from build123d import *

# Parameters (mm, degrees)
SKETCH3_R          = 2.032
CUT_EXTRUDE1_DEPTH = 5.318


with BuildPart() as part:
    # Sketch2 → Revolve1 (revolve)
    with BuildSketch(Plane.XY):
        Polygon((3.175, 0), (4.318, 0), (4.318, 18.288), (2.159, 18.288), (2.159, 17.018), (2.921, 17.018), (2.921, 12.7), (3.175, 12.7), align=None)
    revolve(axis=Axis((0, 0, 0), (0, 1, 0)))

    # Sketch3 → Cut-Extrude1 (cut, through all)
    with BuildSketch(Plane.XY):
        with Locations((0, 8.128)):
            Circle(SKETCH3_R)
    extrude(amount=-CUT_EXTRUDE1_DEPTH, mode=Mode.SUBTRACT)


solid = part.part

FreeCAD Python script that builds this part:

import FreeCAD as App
import Part
import Sketcher
Q = App.Units.Quantity

doc = App.newDocument("Part")
body = doc.addObject("PartDesign::Body", "Body")

sketch1 = body.newObject("Sketcher::SketchObject", "Sketch")
sketch1.AttachmentSupport = (doc.getObject("XY_Plane"), [""])
sketch1.MapMode = "FlatFace"
sketch1.addGeometry(Part.LineSegment(App.Vector(3.17, 0, 0), App.Vector(4.32, 0, 0)), False)
sketch1.addGeometry(Part.LineSegment(App.Vector(4.32, 0, 0), App.Vector(4.32, 18.29, 0)), False)
sketch1.addGeometry(Part.LineSegment(App.Vector(4.32, 18.29, 0), App.Vector(2.16, 18.29, 0)), False)
sketch1.addGeometry(Part.LineSegment(App.Vector(2.16, 18.29, 0), App.Vector(2.16, 17.02, 0)), False)
sketch1.addGeometry(Part.LineSegment(App.Vector(2.16, 17.02, 0), App.Vector(2.92, 17.02, 0)), False)
sketch1.addGeometry(Part.LineSegment(App.Vector(2.92, 17.02, 0), App.Vector(2.92, 12.7, 0)), False)
sketch1.addGeometry(Part.LineSegment(App.Vector(2.92, 12.7, 0), App.Vector(3.17, 12.7, 0)), False)
sketch1.addGeometry(Part.LineSegment(App.Vector(3.17, 12.7, 0), App.Vector(3.17, 0, 0)), False)
sketch1.addConstraint(Sketcher.Constraint("Coincident", 0, 2, 1, 1))
sketch1.addConstraint(Sketcher.Constraint("Coincident", 1, 2, 2, 1))
sketch1.addConstraint(Sketcher.Constraint("Coincident", 2, 2, 3, 1))
sketch1.addConstraint(Sketcher.Constraint("Coincident", 3, 2, 4, 1))
sketch1.addConstraint(Sketcher.Constraint("Coincident", 4, 2, 5, 1))
sketch1.addConstraint(Sketcher.Constraint("Coincident", 5, 2, 6, 1))
sketch1.addConstraint(Sketcher.Constraint("Coincident", 6, 2, 7, 1))
sketch1.addConstraint(Sketcher.Constraint("Coincident", 7, 2, 0, 1))
sketch1.addConstraint(Sketcher.Constraint("Horizontal", 0))
sketch1.addConstraint(Sketcher.Constraint("Vertical", 1))
sketch1.addConstraint(Sketcher.Constraint("Horizontal", 2))
sketch1.addConstraint(Sketcher.Constraint("Vertical", 3))
sketch1.addConstraint(Sketcher.Constraint("Horizontal", 4))
sketch1.addConstraint(Sketcher.Constraint("Vertical", 5))
sketch1.addConstraint(Sketcher.Constraint("Horizontal", 6))
sketch1.addConstraint(Sketcher.Constraint("Vertical", 7))
sketch1.addConstraint(Sketcher.Constraint("PointOnObject", 0, 2, -1))
sketch1.addConstraint(Sketcher.Constraint("DistanceY", 7, 2, 7, 1, Q("0.5 in")))
sketch1.addConstraint(Sketcher.Constraint("DistanceX", 4, 1, 4, 2, Q("0.03 in")))
sketch1.addConstraint(Sketcher.Constraint("DistanceX", 6, 1, 6, 2, Q("0.01 in")))
sketch1.addConstraint(Sketcher.Constraint("DistanceY", 1, 1, 1, 2, Q("0.72 in")))
sketch1.addConstraint(Sketcher.Constraint("DistanceY", 3, 2, 3, 1, Q("0.05 in")))
sketch1.addConstraint(Sketcher.Constraint("DistanceX", 0, 1, 0, 2, Q("0.045 in")))
sketch1.addConstraint(Sketcher.Constraint("DistanceX", -1, 1, 0, 2, Q("0.17 in")))
revolution = body.newObject("PartDesign::Revolution", "Revolution")
revolution.Profile = sketch1
revolution.ReferenceAxis = (sketch1, ["V_Axis"])
revolution.Angle = 360

sketch2 = body.newObject("Sketcher::SketchObject", "Sketch001")
sketch2.AttachmentSupport = (doc.getObject("XY_Plane"), [""])
sketch2.MapMode = "FlatFace"
sketch2.addGeometry(Part.Circle(App.Vector(0, 8.1, 0), App.Vector(0, 0, 1), 2), False)
sketch2.addConstraint(Sketcher.Constraint("PointOnObject", 0, 3, -2))
sketch2.addConstraint(Sketcher.Constraint("Diameter", 0, Q("0.16 in")))
sketch2.addConstraint(Sketcher.Constraint("DistanceY", -1, 1, 0, 3, Q("0.32 in")))
pocket1 = body.newObject("PartDesign::Pocket", "Pocket")
pocket1.Profile = sketch2
pocket1.Type = "ThroughAll"

doc.recompute()
